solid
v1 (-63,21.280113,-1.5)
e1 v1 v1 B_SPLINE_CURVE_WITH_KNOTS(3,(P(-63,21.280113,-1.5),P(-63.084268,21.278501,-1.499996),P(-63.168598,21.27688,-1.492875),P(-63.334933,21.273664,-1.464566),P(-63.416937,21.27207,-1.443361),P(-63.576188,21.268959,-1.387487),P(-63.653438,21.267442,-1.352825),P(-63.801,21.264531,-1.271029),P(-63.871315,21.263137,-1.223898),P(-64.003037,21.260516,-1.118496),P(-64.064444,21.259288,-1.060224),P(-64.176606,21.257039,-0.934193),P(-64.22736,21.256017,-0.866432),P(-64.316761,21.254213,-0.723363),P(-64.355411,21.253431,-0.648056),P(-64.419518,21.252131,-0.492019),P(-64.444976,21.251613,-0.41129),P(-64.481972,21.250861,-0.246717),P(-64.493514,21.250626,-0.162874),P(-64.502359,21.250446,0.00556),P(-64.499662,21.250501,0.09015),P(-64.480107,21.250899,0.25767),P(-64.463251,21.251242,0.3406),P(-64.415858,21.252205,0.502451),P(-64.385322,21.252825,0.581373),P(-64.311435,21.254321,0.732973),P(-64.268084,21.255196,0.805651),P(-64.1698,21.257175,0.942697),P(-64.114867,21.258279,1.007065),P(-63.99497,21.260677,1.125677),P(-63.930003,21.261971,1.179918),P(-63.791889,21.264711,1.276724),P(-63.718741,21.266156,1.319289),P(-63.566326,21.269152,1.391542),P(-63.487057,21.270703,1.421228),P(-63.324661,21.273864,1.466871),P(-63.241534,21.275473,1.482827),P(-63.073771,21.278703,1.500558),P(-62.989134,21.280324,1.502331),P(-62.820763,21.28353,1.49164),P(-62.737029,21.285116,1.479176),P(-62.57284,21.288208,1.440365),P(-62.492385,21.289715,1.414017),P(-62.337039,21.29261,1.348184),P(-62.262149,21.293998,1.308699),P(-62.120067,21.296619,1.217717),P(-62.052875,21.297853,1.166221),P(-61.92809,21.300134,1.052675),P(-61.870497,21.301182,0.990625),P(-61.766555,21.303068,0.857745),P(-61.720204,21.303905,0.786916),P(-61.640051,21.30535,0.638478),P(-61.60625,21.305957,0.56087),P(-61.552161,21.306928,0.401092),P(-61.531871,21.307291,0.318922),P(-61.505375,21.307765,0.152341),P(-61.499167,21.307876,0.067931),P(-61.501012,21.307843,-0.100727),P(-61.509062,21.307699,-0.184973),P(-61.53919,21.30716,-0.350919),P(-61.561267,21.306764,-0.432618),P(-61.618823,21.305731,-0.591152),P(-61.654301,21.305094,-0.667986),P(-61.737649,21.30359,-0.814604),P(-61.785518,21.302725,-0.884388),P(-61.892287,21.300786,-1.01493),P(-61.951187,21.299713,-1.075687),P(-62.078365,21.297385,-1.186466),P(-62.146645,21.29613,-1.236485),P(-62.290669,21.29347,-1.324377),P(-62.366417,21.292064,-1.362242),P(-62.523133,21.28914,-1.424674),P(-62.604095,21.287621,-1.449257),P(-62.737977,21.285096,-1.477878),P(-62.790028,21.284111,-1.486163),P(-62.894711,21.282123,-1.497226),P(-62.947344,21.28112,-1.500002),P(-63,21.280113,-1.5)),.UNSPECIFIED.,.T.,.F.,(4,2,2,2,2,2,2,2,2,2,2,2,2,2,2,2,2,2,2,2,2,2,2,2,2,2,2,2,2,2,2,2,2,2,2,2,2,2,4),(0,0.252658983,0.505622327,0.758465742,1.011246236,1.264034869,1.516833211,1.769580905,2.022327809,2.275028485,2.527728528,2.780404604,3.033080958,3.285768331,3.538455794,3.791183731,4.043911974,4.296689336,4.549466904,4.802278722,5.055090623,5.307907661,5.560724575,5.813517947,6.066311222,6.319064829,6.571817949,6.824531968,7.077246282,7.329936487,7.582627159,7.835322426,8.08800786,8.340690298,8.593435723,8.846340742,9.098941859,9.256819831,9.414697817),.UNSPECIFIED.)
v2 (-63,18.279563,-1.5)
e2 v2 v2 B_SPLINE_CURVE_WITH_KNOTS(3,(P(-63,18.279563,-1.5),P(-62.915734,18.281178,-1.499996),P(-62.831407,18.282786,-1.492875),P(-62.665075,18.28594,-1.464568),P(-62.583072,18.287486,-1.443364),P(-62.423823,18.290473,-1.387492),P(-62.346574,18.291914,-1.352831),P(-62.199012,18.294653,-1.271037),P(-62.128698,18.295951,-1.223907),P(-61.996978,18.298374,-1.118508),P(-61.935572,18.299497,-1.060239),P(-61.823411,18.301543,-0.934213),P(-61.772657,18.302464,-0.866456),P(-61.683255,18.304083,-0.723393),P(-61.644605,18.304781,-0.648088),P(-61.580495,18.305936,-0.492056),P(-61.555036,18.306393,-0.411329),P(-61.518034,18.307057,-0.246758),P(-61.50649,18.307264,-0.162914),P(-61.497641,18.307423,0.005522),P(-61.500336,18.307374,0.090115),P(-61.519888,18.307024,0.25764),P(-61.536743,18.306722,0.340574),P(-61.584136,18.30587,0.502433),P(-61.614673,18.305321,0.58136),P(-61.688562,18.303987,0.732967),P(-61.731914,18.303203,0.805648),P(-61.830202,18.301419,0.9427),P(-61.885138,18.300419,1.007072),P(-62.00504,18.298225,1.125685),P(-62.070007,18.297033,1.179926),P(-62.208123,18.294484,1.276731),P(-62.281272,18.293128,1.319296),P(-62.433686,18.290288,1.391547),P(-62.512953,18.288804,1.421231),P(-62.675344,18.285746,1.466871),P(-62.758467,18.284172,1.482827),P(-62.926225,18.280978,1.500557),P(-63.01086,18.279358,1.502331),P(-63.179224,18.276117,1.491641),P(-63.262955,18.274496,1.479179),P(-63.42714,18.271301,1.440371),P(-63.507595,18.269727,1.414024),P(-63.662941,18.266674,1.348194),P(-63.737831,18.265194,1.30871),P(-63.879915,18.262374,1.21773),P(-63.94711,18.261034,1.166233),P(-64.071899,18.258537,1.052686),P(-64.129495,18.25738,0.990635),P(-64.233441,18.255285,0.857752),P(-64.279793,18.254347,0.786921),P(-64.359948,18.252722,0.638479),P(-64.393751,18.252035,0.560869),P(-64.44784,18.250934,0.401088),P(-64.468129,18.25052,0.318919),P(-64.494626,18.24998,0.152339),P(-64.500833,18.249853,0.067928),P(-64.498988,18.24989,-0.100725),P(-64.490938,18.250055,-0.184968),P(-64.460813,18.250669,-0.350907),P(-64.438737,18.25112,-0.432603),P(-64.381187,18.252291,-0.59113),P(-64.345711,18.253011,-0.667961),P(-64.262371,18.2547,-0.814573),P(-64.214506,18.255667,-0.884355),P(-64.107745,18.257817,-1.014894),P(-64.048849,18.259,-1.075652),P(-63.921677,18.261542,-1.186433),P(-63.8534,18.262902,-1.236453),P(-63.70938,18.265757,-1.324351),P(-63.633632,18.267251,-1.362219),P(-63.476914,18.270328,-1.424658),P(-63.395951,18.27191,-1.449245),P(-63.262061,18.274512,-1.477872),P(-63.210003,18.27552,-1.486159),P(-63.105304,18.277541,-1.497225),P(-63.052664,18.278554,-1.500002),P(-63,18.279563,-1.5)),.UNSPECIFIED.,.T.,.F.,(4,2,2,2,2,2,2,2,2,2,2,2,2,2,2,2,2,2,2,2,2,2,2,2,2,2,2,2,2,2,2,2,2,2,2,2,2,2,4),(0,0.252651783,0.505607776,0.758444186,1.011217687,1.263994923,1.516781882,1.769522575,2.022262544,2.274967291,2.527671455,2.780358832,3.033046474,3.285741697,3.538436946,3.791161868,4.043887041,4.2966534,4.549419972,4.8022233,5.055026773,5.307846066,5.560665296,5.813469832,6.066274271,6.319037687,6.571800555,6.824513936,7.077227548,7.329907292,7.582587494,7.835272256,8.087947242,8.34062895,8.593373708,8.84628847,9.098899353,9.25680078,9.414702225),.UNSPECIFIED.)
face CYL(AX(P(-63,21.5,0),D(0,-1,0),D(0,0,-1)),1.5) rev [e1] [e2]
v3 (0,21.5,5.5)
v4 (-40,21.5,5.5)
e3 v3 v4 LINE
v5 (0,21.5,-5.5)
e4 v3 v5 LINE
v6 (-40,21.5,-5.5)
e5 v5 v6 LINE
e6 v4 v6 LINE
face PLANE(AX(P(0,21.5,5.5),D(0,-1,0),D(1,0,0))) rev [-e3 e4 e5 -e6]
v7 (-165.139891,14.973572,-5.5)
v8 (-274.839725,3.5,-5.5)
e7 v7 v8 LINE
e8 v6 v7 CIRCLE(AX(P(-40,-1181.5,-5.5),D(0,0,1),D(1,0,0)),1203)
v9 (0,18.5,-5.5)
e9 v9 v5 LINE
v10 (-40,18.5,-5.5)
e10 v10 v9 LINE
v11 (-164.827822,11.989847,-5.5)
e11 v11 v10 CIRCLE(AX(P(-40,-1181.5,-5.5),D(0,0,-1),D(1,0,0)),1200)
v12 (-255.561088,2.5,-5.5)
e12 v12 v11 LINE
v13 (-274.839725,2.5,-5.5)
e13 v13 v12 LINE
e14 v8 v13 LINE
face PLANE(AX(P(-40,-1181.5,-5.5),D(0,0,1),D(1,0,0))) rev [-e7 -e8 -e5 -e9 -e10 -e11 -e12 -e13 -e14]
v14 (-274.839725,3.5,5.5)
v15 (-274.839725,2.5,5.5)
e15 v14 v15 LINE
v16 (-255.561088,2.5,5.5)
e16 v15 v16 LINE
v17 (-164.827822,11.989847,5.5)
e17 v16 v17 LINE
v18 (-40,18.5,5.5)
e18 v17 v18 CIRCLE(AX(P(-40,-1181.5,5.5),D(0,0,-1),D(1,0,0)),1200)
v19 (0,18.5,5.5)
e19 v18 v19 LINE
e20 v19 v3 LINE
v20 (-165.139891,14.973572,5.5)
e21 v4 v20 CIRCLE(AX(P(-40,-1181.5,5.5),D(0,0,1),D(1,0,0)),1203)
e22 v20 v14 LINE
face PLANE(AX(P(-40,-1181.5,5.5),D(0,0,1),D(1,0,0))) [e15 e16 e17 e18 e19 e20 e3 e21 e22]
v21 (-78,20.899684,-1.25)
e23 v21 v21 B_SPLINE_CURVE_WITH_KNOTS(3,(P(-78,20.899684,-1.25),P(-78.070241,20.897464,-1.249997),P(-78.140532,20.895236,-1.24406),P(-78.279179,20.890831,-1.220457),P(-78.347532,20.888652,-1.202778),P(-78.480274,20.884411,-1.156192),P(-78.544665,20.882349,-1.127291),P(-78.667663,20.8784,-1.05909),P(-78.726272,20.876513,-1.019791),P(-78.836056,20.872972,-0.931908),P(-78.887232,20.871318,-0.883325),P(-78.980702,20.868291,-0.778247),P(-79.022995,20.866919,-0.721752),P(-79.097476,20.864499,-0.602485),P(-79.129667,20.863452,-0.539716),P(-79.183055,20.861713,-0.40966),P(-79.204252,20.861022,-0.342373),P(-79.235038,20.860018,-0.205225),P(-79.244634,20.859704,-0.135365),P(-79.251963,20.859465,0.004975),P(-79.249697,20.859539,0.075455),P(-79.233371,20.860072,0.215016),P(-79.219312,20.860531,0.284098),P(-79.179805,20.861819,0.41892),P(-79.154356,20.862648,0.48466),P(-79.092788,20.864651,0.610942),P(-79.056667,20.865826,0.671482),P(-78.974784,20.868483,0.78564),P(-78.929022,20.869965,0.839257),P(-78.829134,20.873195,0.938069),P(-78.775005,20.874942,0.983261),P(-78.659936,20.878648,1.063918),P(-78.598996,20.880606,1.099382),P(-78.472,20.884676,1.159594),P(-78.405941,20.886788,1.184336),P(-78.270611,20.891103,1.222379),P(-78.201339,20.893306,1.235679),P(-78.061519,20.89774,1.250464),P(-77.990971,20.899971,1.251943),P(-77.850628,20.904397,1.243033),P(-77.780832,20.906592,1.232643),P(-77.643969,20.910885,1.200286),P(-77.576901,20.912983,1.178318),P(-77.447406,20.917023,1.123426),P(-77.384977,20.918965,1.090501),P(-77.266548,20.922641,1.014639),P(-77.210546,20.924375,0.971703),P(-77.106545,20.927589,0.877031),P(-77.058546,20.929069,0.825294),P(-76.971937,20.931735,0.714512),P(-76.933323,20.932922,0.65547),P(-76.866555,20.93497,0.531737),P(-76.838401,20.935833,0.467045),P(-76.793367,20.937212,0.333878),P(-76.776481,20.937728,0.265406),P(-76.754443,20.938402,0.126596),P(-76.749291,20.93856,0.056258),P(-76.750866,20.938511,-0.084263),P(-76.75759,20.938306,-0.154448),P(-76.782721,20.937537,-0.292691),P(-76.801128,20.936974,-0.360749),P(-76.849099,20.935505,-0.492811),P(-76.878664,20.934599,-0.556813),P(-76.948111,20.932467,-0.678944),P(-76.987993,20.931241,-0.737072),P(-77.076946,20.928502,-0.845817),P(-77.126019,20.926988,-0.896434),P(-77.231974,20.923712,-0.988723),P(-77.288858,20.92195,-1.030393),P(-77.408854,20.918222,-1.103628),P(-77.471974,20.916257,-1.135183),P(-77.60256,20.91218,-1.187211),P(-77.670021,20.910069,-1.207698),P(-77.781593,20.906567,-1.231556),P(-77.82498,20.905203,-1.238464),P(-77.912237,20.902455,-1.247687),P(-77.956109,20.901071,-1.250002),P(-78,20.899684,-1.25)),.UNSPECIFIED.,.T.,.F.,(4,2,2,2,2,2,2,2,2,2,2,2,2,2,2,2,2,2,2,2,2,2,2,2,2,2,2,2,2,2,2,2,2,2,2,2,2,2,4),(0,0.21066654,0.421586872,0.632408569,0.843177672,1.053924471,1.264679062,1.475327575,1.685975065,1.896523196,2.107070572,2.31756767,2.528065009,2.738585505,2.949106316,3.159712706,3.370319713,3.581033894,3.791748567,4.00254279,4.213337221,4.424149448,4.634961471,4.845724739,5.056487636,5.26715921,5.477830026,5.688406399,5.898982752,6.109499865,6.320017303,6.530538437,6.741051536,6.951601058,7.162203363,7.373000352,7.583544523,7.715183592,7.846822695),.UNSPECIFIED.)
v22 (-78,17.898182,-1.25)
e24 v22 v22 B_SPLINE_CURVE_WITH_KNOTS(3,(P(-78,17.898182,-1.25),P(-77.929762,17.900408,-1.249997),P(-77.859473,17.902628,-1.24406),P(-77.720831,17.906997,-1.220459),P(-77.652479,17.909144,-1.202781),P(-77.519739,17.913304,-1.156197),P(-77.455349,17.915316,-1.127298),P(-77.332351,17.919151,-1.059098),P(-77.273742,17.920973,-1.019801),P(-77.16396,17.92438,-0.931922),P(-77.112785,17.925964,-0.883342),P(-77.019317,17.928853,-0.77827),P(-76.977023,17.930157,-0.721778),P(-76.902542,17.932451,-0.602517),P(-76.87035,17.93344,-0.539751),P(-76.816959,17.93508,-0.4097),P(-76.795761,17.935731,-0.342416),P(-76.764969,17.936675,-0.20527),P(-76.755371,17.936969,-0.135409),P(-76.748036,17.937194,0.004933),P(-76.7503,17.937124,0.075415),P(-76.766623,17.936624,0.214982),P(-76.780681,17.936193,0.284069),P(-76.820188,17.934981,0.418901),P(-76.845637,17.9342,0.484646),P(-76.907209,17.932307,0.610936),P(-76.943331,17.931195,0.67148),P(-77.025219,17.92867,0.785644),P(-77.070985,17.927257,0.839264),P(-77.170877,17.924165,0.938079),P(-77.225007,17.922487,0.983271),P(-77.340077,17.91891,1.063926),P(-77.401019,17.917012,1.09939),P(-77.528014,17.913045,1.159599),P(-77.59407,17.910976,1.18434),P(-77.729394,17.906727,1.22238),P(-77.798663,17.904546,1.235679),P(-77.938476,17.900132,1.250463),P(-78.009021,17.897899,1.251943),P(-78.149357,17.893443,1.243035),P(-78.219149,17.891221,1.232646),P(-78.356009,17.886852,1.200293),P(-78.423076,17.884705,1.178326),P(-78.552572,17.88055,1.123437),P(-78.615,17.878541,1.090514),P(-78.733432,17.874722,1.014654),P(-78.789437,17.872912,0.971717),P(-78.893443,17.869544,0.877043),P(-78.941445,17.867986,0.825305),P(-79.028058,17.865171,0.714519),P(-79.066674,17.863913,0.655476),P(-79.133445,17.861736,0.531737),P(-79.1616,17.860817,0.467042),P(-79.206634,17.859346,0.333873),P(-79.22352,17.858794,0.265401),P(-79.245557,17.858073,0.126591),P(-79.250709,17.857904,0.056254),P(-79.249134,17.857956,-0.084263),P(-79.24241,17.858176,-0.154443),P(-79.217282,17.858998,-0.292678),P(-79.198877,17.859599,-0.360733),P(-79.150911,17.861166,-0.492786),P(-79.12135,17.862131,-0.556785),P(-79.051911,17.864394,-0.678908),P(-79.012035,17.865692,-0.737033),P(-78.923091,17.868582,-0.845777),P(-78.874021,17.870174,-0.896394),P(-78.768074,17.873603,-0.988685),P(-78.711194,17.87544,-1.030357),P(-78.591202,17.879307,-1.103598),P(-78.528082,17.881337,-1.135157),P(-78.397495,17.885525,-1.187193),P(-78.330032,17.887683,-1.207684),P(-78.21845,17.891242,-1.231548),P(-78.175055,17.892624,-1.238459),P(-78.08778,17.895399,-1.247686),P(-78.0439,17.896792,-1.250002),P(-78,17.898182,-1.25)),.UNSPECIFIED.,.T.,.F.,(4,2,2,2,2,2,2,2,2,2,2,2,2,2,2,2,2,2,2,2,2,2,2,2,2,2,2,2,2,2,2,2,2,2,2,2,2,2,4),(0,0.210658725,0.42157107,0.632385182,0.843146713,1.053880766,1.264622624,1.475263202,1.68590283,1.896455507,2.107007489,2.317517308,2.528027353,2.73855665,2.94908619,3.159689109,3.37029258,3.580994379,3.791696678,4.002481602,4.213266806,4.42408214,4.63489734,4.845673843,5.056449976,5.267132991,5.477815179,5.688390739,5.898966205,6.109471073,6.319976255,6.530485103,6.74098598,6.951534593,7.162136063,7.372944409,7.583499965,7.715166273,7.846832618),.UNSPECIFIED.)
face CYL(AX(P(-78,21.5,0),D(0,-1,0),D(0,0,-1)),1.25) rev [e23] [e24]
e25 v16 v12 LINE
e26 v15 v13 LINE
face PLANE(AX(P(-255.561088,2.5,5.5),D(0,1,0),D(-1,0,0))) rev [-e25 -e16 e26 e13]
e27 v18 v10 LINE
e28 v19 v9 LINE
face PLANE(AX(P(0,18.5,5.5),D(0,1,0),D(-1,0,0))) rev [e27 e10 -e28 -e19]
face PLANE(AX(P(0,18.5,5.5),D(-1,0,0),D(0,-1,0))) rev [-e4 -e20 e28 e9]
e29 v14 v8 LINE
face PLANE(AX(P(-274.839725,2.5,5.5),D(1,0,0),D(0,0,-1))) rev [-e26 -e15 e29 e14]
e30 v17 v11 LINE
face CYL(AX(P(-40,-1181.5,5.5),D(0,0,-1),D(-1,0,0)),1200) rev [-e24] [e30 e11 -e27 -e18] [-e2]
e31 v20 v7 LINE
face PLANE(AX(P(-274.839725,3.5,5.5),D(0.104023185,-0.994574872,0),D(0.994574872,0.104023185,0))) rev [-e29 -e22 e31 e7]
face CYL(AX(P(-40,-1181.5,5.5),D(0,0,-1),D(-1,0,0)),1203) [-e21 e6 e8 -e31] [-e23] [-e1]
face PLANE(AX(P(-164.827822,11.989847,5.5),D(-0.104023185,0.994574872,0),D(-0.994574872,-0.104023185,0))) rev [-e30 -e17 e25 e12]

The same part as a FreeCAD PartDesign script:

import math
import FreeCAD as App
import Part
import Sketcher

V = App.Vector
Q = App.Units.Quantity

doc = App.newDocument("Part")
body = doc.addObject("PartDesign::Body", "Body")

# Sketch on XY plane
sketch1 = body.newObject("Sketcher::SketchObject", "Sketch")
sketch1.AttachmentSupport = (doc.getObject("XY_Plane"), [""])
sketch1.MapMode = "FlatFace"
sketch1.addGeometry([
    Part.LineSegment(V(-255.561088, 2.5, 0), V(-164.827822, 11.989847, 0)),  # 0
    Part.ArcOfCircle(Part.Circle(V(-40, -1181.5, 0), V(0, 0, 1), 1200), math.radians(90), math.radians(95.970891)),  # 1
    Part.LineSegment(V(-40, 18.5, 0), V(0, 18.5, 0)),  # 2
    Part.LineSegment(V(0, 18.5, 0), V(0, 21.5, 0)),  # 3
    Part.LineSegment(V(0, 21.5, 0), V(-40, 21.5, 0)),  # 4
    Part.ArcOfCircle(Part.Circle(V(-40, -1181.5, 0), V(0, 0, 1), 1203), math.radians(90), math.radians(95.970891)),  # 5
    Part.LineSegment(V(-165.139891, 14.973572, 0), V(-274.839725, 3.5, 0)),  # 6
    Part.LineSegment(V(-274.839725, 3.5, 0), V(-274.839725, 2.5, 0)),  # 7
    Part.LineSegment(V(-274.839725, 2.5, 0), V(-255.561088, 2.5, 0)),  # 8
], False)
sketch1.addConstraint([
    Sketcher.Constraint("Tangent", 0, 2, 1, 2),
    Sketcher.Constraint("Tangent", 1, 1, 2, 1),
    Sketcher.Constraint("Coincident", 2, 2, 3, 1),
    Sketcher.Constraint("Coincident", 3, 2, 4, 1),
    Sketcher.Constraint("Tangent", 4, 2, 5, 1),
    Sketcher.Constraint("Tangent", 5, 2, 6, 1),
    Sketcher.Constraint("Coincident", 6, 2, 7, 1),
    Sketcher.Constraint("Coincident", 7, 2, 8, 1),
    Sketcher.Constraint("Coincident", 8, 2, 0, 1),
    Sketcher.Constraint("Horizontal", 2),
    Sketcher.Constraint("Vertical", 3),
    Sketcher.Constraint("Horizontal", 4),
    Sketcher.Constraint("Vertical", 7),
    Sketcher.Constraint("Horizontal", 8),
    Sketcher.Constraint("Coincident", 5, 3, 1, 3),
    Sketcher.Constraint("PointOnObject", 2, 2, -2),
    Sketcher.Constraint("Parallel", 0, 6),
    Sketcher.Constraint("Radius", 1, Q("1200 mm")),
    Sketcher.Constraint("Radius", 5, Q("1203 mm")),
    Sketcher.Constraint("DistanceX", 2, 1, 2, 2, Q("40 mm")),
    Sketcher.Constraint("DistanceY", 7, 2, 7, 1, Q("1 mm")),
    Sketcher.Constraint("DistanceY", 6, 2, 1, 1, Q("15 mm")),
    Sketcher.Constraint("DistanceY", 1, 3, -1, 1, Q("1181.5 mm")),
    Sketcher.Constraint("Distance", 0, Q("91.228191 mm")),
])
pad1 = body.newObject("PartDesign::Pad", "Pad")
pad1.Profile = sketch1
pad1.Length = 11
pad1.Midplane = True

# Sketch on XZ plane
sketch2 = body.newObject("Sketcher::SketchObject", "Sketch001")
sketch2.AttachmentSupport = (doc.getObject("XZ_Plane"), [""])
sketch2.MapMode = "FlatFace"
sketch2.addGeometry([
    Part.Circle(V(-63, 0, 0), V(0, 0, 1), 1.5),
    Part.Circle(V(-78, 0, 0), V(0, 0, 1), 1.25),
], False)
sketch2.addConstraint([
    Sketcher.Constraint("PointOnObject", 0, 3, -1),
    Sketcher.Constraint("PointOnObject", 1, 3, -1),
    Sketcher.Constraint("Diameter", 0, Q("3 mm")),
    Sketcher.Constraint("Diameter", 1, Q("2.5 mm")),
    Sketcher.Constraint("DistanceX", 0, 3, -1, 1, Q("63 mm")),
    Sketcher.Constraint("DistanceX", 1, 3, -1, 1, Q("78 mm")),
])
pocket1 = body.newObject("PartDesign::Pocket", "Pocket")
pocket1.Profile = sketch2
pocket1.Type = "ThroughAll"

doc.recompute()
